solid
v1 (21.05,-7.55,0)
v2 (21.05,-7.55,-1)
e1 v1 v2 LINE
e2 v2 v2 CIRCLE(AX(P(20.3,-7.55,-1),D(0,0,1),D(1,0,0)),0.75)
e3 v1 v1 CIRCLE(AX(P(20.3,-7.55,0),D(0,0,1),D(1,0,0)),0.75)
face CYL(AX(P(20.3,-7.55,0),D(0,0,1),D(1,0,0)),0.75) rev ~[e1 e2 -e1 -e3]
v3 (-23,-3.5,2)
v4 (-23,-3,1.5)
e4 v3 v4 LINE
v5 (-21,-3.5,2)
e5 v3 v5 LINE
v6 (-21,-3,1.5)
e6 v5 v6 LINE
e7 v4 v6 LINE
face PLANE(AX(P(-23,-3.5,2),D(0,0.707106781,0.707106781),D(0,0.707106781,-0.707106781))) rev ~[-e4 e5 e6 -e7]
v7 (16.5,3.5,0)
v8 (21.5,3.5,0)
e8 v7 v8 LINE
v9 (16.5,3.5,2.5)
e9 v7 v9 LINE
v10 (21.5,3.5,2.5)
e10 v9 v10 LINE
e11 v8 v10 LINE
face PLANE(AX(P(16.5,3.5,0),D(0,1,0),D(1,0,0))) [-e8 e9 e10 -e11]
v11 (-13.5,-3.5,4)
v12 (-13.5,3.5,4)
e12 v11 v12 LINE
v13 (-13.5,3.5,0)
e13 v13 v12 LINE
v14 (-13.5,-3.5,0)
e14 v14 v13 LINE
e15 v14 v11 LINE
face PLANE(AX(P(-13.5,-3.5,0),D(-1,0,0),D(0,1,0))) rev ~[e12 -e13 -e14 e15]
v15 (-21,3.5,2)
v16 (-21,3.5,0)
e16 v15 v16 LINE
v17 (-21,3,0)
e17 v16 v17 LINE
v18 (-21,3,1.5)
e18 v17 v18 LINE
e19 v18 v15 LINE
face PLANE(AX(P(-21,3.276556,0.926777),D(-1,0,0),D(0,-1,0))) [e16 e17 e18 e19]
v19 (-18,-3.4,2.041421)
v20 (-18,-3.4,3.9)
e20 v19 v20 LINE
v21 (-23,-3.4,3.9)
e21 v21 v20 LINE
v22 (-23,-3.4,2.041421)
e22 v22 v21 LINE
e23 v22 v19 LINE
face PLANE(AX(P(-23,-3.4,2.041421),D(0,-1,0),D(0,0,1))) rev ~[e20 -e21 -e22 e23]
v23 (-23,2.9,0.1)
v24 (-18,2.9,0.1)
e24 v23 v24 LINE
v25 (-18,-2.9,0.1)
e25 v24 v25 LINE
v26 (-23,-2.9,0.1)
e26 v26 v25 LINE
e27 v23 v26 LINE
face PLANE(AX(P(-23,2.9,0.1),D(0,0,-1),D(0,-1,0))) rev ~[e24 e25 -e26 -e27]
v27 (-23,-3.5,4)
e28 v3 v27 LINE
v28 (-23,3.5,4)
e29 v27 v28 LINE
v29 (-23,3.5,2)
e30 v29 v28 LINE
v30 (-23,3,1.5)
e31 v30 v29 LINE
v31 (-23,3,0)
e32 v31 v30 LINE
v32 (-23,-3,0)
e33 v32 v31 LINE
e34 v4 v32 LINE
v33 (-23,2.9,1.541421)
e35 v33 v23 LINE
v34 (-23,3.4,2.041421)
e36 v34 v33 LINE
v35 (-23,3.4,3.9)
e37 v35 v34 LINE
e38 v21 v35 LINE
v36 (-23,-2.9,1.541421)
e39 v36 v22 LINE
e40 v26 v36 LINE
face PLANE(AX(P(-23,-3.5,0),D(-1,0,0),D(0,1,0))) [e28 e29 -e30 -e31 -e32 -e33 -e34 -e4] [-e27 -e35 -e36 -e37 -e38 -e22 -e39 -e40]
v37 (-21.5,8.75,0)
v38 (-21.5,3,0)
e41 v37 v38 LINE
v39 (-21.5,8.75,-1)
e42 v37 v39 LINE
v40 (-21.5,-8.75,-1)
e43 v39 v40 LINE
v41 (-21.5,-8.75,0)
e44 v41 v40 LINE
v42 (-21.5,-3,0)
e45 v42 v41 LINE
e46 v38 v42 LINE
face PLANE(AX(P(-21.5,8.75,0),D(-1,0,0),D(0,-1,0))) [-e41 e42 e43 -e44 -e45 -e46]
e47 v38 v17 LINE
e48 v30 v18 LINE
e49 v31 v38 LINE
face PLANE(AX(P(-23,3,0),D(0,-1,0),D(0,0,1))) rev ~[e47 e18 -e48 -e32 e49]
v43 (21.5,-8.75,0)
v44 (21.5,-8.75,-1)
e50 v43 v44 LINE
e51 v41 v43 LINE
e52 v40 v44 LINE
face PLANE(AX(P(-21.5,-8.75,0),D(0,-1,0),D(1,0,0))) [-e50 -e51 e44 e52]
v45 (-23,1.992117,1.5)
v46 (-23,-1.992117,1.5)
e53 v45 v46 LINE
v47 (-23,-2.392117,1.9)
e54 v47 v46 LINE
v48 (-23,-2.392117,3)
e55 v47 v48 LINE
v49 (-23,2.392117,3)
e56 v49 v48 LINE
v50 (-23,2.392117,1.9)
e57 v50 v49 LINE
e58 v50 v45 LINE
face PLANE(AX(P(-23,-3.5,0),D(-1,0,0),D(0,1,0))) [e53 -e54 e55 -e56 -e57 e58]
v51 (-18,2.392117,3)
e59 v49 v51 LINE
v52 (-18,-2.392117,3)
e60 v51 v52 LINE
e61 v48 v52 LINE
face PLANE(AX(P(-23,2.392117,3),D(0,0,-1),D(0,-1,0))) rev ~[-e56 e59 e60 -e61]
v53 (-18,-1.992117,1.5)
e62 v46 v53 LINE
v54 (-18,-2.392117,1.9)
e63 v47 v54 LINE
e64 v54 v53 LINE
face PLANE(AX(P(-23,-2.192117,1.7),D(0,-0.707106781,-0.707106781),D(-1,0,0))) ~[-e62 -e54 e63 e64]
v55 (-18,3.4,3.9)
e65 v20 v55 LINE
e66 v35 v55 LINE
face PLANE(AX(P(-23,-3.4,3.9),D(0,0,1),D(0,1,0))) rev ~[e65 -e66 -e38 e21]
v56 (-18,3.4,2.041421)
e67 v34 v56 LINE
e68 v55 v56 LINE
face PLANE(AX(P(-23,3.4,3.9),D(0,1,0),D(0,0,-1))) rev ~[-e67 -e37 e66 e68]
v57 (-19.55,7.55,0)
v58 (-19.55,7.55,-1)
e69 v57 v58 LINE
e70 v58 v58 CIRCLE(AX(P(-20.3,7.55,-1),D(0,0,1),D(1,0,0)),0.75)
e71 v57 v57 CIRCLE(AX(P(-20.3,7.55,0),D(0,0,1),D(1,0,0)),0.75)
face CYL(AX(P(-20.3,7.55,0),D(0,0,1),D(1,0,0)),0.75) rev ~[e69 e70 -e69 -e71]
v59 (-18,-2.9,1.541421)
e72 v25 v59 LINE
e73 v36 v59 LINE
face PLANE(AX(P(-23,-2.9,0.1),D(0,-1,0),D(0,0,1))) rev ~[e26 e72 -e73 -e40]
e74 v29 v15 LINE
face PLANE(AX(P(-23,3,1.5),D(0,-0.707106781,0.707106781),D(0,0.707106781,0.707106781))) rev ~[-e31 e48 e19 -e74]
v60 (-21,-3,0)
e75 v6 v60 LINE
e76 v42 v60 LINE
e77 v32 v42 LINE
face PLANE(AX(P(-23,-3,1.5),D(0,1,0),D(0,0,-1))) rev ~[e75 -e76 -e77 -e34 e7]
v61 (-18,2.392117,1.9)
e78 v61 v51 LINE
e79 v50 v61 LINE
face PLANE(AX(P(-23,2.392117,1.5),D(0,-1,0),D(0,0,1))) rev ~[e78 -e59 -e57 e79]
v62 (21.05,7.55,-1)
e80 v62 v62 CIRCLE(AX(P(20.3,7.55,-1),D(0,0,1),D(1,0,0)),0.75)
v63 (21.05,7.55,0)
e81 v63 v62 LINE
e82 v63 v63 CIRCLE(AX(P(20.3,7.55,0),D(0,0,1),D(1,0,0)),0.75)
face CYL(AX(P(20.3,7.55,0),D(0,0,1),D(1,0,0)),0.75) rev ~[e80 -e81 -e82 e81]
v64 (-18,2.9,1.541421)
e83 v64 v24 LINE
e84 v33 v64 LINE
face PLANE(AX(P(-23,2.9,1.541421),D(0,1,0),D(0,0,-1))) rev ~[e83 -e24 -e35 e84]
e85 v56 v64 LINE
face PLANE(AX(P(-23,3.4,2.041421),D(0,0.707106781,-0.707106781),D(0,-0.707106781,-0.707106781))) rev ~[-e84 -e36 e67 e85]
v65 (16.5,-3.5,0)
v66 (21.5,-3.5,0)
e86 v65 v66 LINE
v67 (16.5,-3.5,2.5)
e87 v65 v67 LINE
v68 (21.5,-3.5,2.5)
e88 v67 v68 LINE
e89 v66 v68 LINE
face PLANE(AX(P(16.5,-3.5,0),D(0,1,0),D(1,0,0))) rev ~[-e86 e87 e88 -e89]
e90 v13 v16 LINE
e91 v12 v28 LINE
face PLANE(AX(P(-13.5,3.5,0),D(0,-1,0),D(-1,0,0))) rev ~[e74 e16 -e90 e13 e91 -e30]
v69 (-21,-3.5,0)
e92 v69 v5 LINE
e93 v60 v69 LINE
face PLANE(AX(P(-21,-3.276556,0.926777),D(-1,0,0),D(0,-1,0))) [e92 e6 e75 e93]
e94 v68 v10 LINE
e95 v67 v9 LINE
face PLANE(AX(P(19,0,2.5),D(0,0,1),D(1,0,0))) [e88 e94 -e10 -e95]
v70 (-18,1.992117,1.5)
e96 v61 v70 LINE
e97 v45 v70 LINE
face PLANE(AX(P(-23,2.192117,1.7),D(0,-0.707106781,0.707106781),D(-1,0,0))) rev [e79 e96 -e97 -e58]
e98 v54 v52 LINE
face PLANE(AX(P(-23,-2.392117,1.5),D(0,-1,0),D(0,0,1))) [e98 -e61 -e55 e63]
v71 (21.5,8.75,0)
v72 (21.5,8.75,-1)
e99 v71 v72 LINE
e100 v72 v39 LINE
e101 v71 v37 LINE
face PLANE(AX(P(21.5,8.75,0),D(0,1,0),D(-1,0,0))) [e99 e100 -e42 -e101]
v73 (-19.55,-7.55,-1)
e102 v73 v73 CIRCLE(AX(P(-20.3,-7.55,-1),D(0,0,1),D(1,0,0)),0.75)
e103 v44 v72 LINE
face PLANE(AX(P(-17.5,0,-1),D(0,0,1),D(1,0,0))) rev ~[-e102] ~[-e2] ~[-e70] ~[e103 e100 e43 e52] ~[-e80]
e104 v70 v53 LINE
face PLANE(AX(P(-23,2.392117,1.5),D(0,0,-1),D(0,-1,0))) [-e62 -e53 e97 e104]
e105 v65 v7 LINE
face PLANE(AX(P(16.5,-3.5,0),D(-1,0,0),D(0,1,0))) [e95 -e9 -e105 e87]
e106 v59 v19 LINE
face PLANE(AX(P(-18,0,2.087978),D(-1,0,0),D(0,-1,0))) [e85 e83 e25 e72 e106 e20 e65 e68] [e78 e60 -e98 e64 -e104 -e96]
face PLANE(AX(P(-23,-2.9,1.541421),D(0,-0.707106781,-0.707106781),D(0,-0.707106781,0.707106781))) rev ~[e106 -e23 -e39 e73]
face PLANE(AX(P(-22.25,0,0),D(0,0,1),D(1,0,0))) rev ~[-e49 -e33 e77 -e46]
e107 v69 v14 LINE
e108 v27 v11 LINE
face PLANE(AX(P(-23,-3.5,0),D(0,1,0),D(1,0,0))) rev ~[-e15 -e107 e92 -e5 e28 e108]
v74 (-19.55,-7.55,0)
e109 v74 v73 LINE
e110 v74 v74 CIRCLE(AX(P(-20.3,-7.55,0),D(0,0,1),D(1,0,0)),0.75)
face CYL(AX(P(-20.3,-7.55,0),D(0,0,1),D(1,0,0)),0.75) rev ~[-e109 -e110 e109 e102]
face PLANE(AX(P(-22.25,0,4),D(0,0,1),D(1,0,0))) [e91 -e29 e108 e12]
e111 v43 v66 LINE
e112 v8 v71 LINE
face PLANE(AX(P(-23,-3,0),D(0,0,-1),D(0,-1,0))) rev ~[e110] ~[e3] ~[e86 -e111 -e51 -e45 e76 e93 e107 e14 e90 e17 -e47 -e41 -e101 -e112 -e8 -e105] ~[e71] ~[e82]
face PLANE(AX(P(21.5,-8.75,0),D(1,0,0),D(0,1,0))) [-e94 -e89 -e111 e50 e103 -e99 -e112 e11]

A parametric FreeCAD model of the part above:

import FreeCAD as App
import Part
import Sketcher

V = App.Vector
Q = App.Units.Quantity


def edges_at(feature, points):
    """Names of the edges that pass closest to the given points."""
    edges = feature.Shape.Edges
    near = lambda p: min(range(len(edges)), key=lambda i: edges[i].distToShape(Part.Vertex(*p))[0])
    return sorted({f"Edge{near(p) + 1}" for p in points})


def add_polygon(sketch, points):
    """Adds a closed chain of lines whose ends are joined by coincident constraints."""
    first, n = sketch.GeometryCount, len(points)
    for a, b in zip(points, points[1:] + points[:1]):
        sketch.addGeometry(Part.LineSegment(App.Vector(*a, 0), App.Vector(*b, 0)), False)
    for i in range(n):
        sketch.addConstraint(Sketcher.Constraint("Coincident", first + i, 2, first + (i + 1) % n, 1))

doc = App.newDocument("Part")
params = doc.addObject("Spreadsheet::Sheet", "Params")
for row, (alias, value) in enumerate([
    ("sketch1_diameter", "1.5 mm"),
    ("sketch1_width", "43 mm"),
    ("sketch1_height", "17.5 mm"),
    ("pad1_length", "1 mm"),
    ("sketch2_height", "7 mm"),
    ("sketch2_width", "9.5 mm"),
    ("pad2_length", "4 mm"),
    ("sketch3_width", "5 mm"),
    ("sketch3_height", "7 mm"),
    ("pad3_length", "2.5 mm"),
    ("sketch4_width", "6.8 mm"),
    ("sketch4_width2", "5.8 mm"),
    ("sketch4_height", "1.5 mm"),
    ("pocket1_length", "5 mm"),
    ("sketch5_height", "2 mm"),
    ("sketch5_width", "0.5 mm"),
    ("pocket2_length", "2 mm"),
    ("chamfer_size", "0.4 mm"),
], start=1):
    params.set(f"A{row}", alias)
    params.set(f"B{row}", "=" + value)
    params.setAlias(f"B{row}", alias)

body = doc.addObject("PartDesign::Body", "Body")

# Sketch on XY plane
sketch1 = body.newObject("Sketcher::SketchObject", "Sketch")
sketch1.AttachmentSupport = (doc.getObject("XY_Plane"), [""])
sketch1.MapMode = "FlatFace"
add_polygon(sketch1, [(-21.5, -8.8), (21.5, -8.8), (21.5, 8.8), (-21.5, 8.8)])  # lines 0-3
sketch1.addGeometry(Part.Circle(V(-20.3, -7.5, 0), V(0, 0, 1), 0.8), False)  # 4
sketch1.addGeometry(Part.Circle(V(20.3, -7.5, 0), V(0, 0, 1), 0.8), False)  # 5
sketch1.addGeometry(Part.Circle(V(-20.3, 7.5, 0), V(0, 0, 1), 0.8), False)  # 6
sketch1.addGeometry(Part.Circle(V(20.3, 7.5, 0), V(0, 0, 1), 0.8), False)  # 7
sketch1.addConstraint(Sketcher.Constraint("Horizontal", 0))
sketch1.addConstraint(Sketcher.Constraint("Vertical", 1))
sketch1.addConstraint(Sketcher.Constraint("Horizontal", 2))
sketch1.addConstraint(Sketcher.Constraint("Vertical", 3))
sketch1.addConstraint(Sketcher.Constraint("Equal", 4, 5))
sketch1.addConstraint(Sketcher.Constraint("Equal", 5, 6))
sketch1.addConstraint(Sketcher.Constraint("Equal", 6, 7))
sketch1.addConstraint(Sketcher.Constraint("Symmetric", 5, 3, 6, 3, -1, 1))
sketch1.addConstraint(Sketcher.Constraint("Symmetric", 4, 3, 7, 3, -1, 1))
sketch1.addConstraint(Sketcher.Constraint("Symmetric", 0, 2, 2, 2, -1, 1))
sketch1.addConstraint(Sketcher.Constraint("Symmetric", 4, 3, 5, 3, -2))
sketch1.addConstraint(Sketcher.Constraint("Diameter", 4, Q("1.5 mm")))
sketch1.addConstraint(Sketcher.Constraint("DistanceX", 0, 1, 0, 2, Q("43 mm")))
sketch1.addConstraint(Sketcher.Constraint("DistanceY", 1, 1, 1, 2, Q("17.5 mm")))
sketch1.addConstraint(Sketcher.Constraint("DistanceX", 4, 3, -1, 1, Q("20.3 mm")))
sketch1.addConstraint(Sketcher.Constraint("DistanceY", 4, 3, 6, 3, Q("15.1 mm")))
sketch1.setExpression("Constraints[15]", "Params.sketch1_diameter")
sketch1.setExpression("Constraints[16]", "Params.sketch1_width")
sketch1.setExpression("Constraints[17]", "Params.sketch1_height")
pad1 = body.newObject("PartDesign::Pad", "Pad")
pad1.Profile = sketch1
pad1.setExpression("Length", "Params.pad1_length")
pad1.Reversed = True

# Sketch on XY plane
sketch2 = body.newObject("Sketcher::SketchObject", "Sketch001")
sketch2.AttachmentSupport = (doc.getObject("XY_Plane"), [""])
sketch2.MapMode = "FlatFace"
add_polygon(sketch2, [(-23, 4), (-23, -4), (-14, -4), (-14, 4)])  # lines 0-3
sketch2.addConstraint(Sketcher.Constraint("Vertical", 0))
sketch2.addConstraint(Sketcher.Constraint("Horizontal", 1))
sketch2.addConstraint(Sketcher.Constraint("Vertical", 2))
sketch2.addConstraint(Sketcher.Constraint("Horizontal", 3))
sketch2.addConstraint(Sketcher.Constraint("DistanceY", 0, 2, 0, 1, Q("7 mm")))
sketch2.addConstraint(Sketcher.Constraint("DistanceX", 1, 1, 1, 2, Q("9.5 mm")))
sketch2.addConstraint(Sketcher.Constraint("DistanceX", 0, 2, -1, 1, Q("23 mm")))
sketch2.addConstraint(Sketcher.Constraint("DistanceY", 0, 2, -1, 1, Q("3.5 mm")))
sketch2.setExpression("Constraints[8]", "Params.sketch2_height")
sketch2.setExpression("Constraints[9]", "Params.sketch2_width")
pad2 = body.newObject("PartDesign::Pad", "Pad001")
pad2.Profile = sketch2
pad2.setExpression("Length", "Params.pad2_length")

# Sketch on XY plane
sketch3 = body.newObject("Sketcher::SketchObject", "Sketch002")
sketch3.AttachmentSupport = (doc.getObject("XY_Plane"), [""])
sketch3.MapMode = "FlatFace"
add_polygon(sketch3, [(16, 4), (16, -4), (22, -4), (22, 4)])  # lines 0-3
sketch3.addConstraint(Sketcher.Constraint("Vertical", 0))
sketch3.addConstraint(Sketcher.Constraint("Horizontal", 1))
sketch3.addConstraint(Sketcher.Constraint("Vertical", 2))
sketch3.addConstraint(Sketcher.Constraint("Horizontal", 3))
sketch3.addConstraint(Sketcher.Constraint("DistanceX", 1, 1, 1, 2, Q("5 mm")))
sketch3.addConstraint(Sketcher.Constraint("DistanceY", 0, 2, 0, 1, Q("7 mm")))
sketch3.addConstraint(Sketcher.Constraint("DistanceX", -1, 1, 0, 2, Q("16.5 mm")))
sketch3.addConstraint(Sketcher.Constraint("DistanceY", 0, 2, -1, 1, Q("3.5 mm")))
sketch3.setExpression("Constraints[8]", "Params.sketch3_width")
sketch3.setExpression("Constraints[9]", "Params.sketch3_height")
pad3 = body.newObject("PartDesign::Pad", "Pad002")
pad3.Profile = sketch3
pad3.setExpression("Length", "Params.pad3_length")

# Sketch on YZ plane
sketch4 = body.newObject("Sketcher::SketchObject", "Sketch003")
sketch4.AttachmentSupport = (doc.getObject("YZ_Plane"), [""])
sketch4.MapMode = "FlatFace"
sketch4.AttachmentOffset = App.Placement(V(0, 0, -23), App.Rotation())
add_polygon(sketch4, [(-3.4, 3.9), (3.4, 3.9), (3.4, 2), (2.9, 1.5), (2.9, 0.1), (-2.9, 0.1), (-2.9, 1.5), (-3.4, 2)])  # lines 0-7
add_polygon(sketch4, [(-2.4, 1.5), (2.4, 1.5), (2.4, 3), (-2.4, 3)])  # lines 8-11
sketch4.addConstraint(Sketcher.Constraint("Horizontal", 0))
sketch4.addConstraint(Sketcher.Constraint("Vertical", 1))
sketch4.addConstraint(Sketcher.Constraint("Vertical", 3))
sketch4.addConstraint(Sketcher.Constraint("Horizontal", 4))
sketch4.addConstraint(Sketcher.Constraint("Vertical", 5))
sketch4.addConstraint(Sketcher.Constraint("Vertical", 7))
sketch4.addConstraint(Sketcher.Constraint("Horizontal", 8))
sketch4.addConstraint(Sketcher.Constraint("Vertical", 9))
sketch4.addConstraint(Sketcher.Constraint("Horizontal", 10))
sketch4.addConstraint(Sketcher.Constraint("Vertical", 11))
sketch4.addConstraint(Sketcher.Constraint("Symmetric", 2, 2, 5, 2, -2))
sketch4.addConstraint(Sketcher.Constraint("Symmetric", 1, 2, 6, 2, -2))
sketch4.addConstraint(Sketcher.Constraint("Perpendicular", 2, 6))
sketch4.addConstraint(Sketcher.Constraint("DistanceX", 0, 1, 0, 2, Q("6.8 mm")))
sketch4.addConstraint(Sketcher.Constraint("DistanceX", 4, 2, 4, 1, Q("5.8 mm")))
sketch4.addConstraint(Sketcher.Constraint("DistanceY", 9, 1, 9, 2, Q("1.5 mm")))
sketch4.addConstraint(Sketcher.Constraint("DistanceY", -1, 1, 9, 2, Q("3 mm")))
sketch4.addConstraint(Sketcher.Constraint("DistanceY", -1, 1, 0, 2, Q("3.9 mm")))
sketch4.addConstraint(Sketcher.Constraint("DistanceY", -1, 1, 3, 2, Q("0.1 mm")))
sketch4.addConstraint(Sketcher.Constraint("DistanceY", 1, 2, 1, 1, Q("1.858579 mm")))
sketch4.addConstraint(Sketcher.Constraint("DistanceX", 8, 1, 8, 2, Q("4.784234 mm")))
sketch4.addConstraint(Sketcher.Constraint("DistanceX", -1, 1, 8, 2, Q("2.392117 mm")))
sketch4.setExpression("Constraints[25]", "Params.sketch4_width")
sketch4.setExpression("Constraints[26]", "Params.sketch4_width2")
sketch4.setExpression("Constraints[27]", "Params.sketch4_height")
pocket1 = body.newObject("PartDesign::Pocket", "Pocket")
pocket1.Profile = sketch4
pocket1.setExpression("Length", "Params.pocket1_length")
pocket1.Reversed = True

# Sketch on YZ plane
sketch5 = body.newObject("Sketcher::SketchObject", "Sketch004")
sketch5.AttachmentSupport = (doc.getObject("YZ_Plane"), [""])
sketch5.MapMode = "FlatFace"
sketch5.AttachmentOffset = App.Placement(V(0, 0, -23), App.Rotation())
add_polygon(sketch5, [(3, 1.5), (3.5, 2), (3.5, 0), (3, 0)])  # lines 0-3
add_polygon(sketch5, [(-3, 1.5), (-3, 0), (-3.5, 0), (-3.5, 2)])  # lines 4-7
sketch5.addConstraint(Sketcher.Constraint("Vertical", 1))
sketch5.addConstraint(Sketcher.Constraint("Horizontal", 2))
sketch5.addConstraint(Sketcher.Constraint("Vertical", 3))
sketch5.addConstraint(Sketcher.Constraint("Vertical", 4))
sketch5.addConstraint(Sketcher.Constraint("Horizontal", 5))
sketch5.addConstraint(Sketcher.Constraint("Vertical", 6))
sketch5.addConstraint(Sketcher.Constraint("Symmetric", 2, 2, 4, 2, -1, 1))
sketch5.addConstraint(Sketcher.Constraint("Symmetric", 1, 2, 5, 2, -2))
sketch5.addConstraint(Sketcher.Constraint("Perpendicular", 0, 7))
sketch5.addConstraint(Sketcher.Constraint("Horizontal", 0, 2, 6, 2))
sketch5.addConstraint(Sketcher.Constraint("Horizontal", 3, 2, 7, 2))
sketch5.addConstraint(Sketcher.Constraint("DistanceY", 1, 2, 1, 1, Q("2 mm")))
sketch5.addConstraint(Sketcher.Constraint("DistanceX", 2, 2, 2, 1, Q("0.5 mm")))
sketch5.addConstraint(Sketcher.Constraint("DistanceX", -1, 1, 2, 2, Q("3 mm")))
sketch5.setExpression("Constraints[19]", "Params.sketch5_height")
sketch5.setExpression("Constraints[20]", "Params.sketch5_width")
pocket2 = body.newObject("PartDesign::Pocket", "Pocket001")
pocket2.Profile = sketch5
pocket2.setExpression("Length", "Params.pocket2_length")
pocket2.Reversed = True
doc.recompute()

chamfer = body.newObject("PartDesign::Chamfer", "Chamfer")
chamfer.Base = (pocket2, edges_at(pocket2, [(-20.5, -2.392, 1.5), (-20.5, 2.392, 1.5)]))
chamfer.setExpression("Size", "Params.chamfer_size")

doc.recompute()
